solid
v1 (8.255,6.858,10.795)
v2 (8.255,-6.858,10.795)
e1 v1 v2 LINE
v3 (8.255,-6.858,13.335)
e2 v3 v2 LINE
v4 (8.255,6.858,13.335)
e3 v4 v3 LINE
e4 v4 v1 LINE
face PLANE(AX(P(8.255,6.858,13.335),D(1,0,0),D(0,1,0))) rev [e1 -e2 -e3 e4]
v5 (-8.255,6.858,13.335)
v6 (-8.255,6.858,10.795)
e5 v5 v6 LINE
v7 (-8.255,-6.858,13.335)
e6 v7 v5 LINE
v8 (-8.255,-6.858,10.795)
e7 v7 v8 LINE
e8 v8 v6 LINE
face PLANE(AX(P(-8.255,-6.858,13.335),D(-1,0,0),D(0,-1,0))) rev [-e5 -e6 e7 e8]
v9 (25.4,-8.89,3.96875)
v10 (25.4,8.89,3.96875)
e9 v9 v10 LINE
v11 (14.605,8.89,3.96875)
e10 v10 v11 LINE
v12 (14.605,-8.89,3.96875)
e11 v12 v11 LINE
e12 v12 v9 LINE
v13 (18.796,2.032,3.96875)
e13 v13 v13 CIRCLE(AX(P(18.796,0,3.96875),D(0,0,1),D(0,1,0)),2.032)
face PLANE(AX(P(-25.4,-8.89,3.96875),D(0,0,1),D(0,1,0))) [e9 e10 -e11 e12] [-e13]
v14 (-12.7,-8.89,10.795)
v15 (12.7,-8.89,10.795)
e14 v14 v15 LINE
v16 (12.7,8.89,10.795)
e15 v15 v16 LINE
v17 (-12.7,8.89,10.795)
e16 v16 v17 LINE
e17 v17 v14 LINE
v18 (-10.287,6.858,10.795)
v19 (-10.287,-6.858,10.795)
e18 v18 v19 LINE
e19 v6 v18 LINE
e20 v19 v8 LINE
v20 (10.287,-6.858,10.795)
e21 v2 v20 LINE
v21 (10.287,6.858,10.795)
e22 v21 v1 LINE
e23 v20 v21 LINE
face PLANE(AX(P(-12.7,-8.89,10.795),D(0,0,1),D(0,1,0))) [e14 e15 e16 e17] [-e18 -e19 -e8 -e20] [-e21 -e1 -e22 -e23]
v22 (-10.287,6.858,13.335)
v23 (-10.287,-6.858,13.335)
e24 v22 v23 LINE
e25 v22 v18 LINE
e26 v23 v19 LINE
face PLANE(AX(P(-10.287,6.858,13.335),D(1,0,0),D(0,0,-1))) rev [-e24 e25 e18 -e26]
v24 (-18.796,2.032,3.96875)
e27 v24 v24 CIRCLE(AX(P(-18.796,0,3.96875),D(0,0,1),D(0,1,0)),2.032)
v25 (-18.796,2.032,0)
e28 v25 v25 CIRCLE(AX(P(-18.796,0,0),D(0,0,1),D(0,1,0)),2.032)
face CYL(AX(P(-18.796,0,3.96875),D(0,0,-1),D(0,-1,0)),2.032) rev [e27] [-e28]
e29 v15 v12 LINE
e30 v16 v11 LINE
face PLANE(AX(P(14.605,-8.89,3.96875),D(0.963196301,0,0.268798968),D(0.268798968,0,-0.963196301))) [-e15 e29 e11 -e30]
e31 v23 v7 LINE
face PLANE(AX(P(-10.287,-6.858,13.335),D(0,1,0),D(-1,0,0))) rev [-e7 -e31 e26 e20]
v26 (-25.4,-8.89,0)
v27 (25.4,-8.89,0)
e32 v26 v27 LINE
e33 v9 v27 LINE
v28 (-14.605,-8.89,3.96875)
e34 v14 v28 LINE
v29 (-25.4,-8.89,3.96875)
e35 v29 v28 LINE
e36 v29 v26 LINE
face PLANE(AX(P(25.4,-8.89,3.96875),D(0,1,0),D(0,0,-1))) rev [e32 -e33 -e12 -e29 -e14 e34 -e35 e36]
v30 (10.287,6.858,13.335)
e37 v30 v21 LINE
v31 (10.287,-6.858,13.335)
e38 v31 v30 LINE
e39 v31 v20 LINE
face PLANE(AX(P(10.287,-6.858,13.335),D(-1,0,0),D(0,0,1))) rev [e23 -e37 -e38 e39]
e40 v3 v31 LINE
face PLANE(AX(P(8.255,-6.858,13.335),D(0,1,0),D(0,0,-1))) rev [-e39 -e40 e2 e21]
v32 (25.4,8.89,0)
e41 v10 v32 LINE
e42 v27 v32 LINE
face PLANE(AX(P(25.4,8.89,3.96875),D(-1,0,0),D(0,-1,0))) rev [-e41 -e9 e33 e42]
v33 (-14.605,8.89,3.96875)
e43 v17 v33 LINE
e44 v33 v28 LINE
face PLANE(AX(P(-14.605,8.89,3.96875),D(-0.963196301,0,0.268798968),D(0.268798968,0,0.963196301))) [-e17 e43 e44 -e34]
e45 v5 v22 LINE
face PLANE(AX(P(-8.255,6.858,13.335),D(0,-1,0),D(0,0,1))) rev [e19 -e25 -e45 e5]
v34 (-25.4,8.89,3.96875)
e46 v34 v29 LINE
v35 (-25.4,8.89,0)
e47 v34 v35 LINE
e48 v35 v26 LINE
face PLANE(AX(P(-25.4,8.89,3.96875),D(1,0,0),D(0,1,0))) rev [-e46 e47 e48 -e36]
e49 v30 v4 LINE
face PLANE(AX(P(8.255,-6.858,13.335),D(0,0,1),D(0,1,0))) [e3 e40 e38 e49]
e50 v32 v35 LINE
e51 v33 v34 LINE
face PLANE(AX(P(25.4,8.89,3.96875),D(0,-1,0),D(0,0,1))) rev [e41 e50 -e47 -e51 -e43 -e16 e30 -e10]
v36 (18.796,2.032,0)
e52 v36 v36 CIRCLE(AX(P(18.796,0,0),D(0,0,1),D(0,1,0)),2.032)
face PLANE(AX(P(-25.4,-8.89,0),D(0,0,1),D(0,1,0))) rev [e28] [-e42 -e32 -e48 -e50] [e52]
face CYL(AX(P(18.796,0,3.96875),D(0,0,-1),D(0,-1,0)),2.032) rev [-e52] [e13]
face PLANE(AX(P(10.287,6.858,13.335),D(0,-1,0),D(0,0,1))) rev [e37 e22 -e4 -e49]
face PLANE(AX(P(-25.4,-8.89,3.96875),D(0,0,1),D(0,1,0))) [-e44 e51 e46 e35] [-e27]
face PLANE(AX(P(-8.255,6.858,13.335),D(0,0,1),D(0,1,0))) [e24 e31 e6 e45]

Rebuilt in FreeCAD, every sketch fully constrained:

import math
import FreeCAD as App
import Part
import Sketcher
from FreeCAD import Vector
Q = App.Units.Quantity


def edges_at(feature, points):
    """Names of the edges that pass closest to the given points."""
    edges = feature.Shape.Edges
    near = lambda p: min(range(len(edges)), key=lambda i: edges[i].distToShape(Part.Vertex(*p))[0])
    return sorted({f"Edge{near(p) + 1}" for p in points})

doc = App.newDocument("Part")
body = doc.addObject("PartDesign::Body", "Body")

# Sketch on XY plane
sketch1 = doc.addObject("Sketcher::SketchObject", "Sketch")
body.addObject(sketch1)
sketch1.AttachmentSupport = (doc.XY_Plane, [""])
sketch1.MapMode = "FlatFace"
sketch1.addGeometry(Part.LineSegment(Vector(-8.9, 25.4, 0), Vector(-8.9, -25.4, 0)), False)
sketch1.addGeometry(Part.LineSegment(Vector(-8.9, -25.4, 0), Vector(8.9, -25.4, 0)), False)
sketch1.addGeometry(Part.LineSegment(Vector(8.9, -25.4, 0), Vector(8.9, 25.4, 0)), False)
sketch1.addGeometry(Part.LineSegment(Vector(8.9, 25.4, 0), Vector(-8.9, 25.4, 0)), False)
sketch1.addGeometry(Part.Circle(Vector(0, -18.8, 0), Vector(0, 0, 1), 2), False)
sketch1.addGeometry(Part.Circle(Vector(0, 18.8, 0), Vector(0, 0, 1), 2), False)
sketch1.addConstraint(Sketcher.Constraint("Coincident", 0, 2, 1, 1))
sketch1.addConstraint(Sketcher.Constraint("Coincident", 1, 2, 2, 1))
sketch1.addConstraint(Sketcher.Constraint("Coincident", 2, 2, 3, 1))
sketch1.addConstraint(Sketcher.Constraint("Coincident", 3, 2, 0, 1))
sketch1.addConstraint(Sketcher.Constraint("Vertical", 0))
sketch1.addConstraint(Sketcher.Constraint("Horizontal", 1))
sketch1.addConstraint(Sketcher.Constraint("Vertical", 2))
sketch1.addConstraint(Sketcher.Constraint("Horizontal", 3))
sketch1.addConstraint(Sketcher.Constraint("Equal", 4, 5))
sketch1.addConstraint(Sketcher.Constraint("Symmetric", 4, 3, 5, 3, -1, 1))
sketch1.addConstraint(Sketcher.Constraint("Symmetric", 0, 2, 2, 2, -1, 1))
sketch1.addConstraint(Sketcher.Constraint("PointOnObject", 4, 3, -2))
sketch1.addConstraint(Sketcher.Constraint("Diameter", 4, Q("0.16 in")))
sketch1.addConstraint(Sketcher.Constraint("DistanceY", 0, 2, 0, 1, Q("2 in")))
sketch1.addConstraint(Sketcher.Constraint("DistanceX", 1, 1, 1, 2, Q("0.7 in")))
sketch1.addConstraint(Sketcher.Constraint("DistanceY", 4, 3, -1, 1, Q("0.74 in")))
pad1 = doc.addObject("PartDesign::Pad", "Pad")
body.addObject(pad1)
pad1.Profile = sketch1
pad1.Length = Q("0.15625 in")

# Sketch on XY plane
sketch2 = doc.addObject("Sketcher::SketchObject", "Sketch001")
body.addObject(sketch2)
sketch2.AttachmentSupport = (doc.XY_Plane, [""])
sketch2.MapMode = "FlatFace"
sketch2.AttachmentOffset = App.Placement(Vector(0, 0, 0.425 * 25.4), App.Rotation())
sketch2.addGeometry(Part.LineSegment(Vector(-9, 13, 0), Vector(-9, -13, 0)), False)
sketch2.addGeometry(Part.LineSegment(Vector(-9, -13, 0), Vector(9, -13, 0)), False)
sketch2.addGeometry(Part.LineSegment(Vector(9, -13, 0), Vector(9, 13, 0)), False)
sketch2.addGeometry(Part.LineSegment(Vector(9, 13, 0), Vector(-9, 13, 0)), False)
sketch2.addConstraint(Sketcher.Constraint("Coincident", 0, 2, 1, 1))
sketch2.addConstraint(Sketcher.Constraint("Coincident", 1, 2, 2, 1))
sketch2.addConstraint(Sketcher.Constraint("Coincident", 2, 2, 3, 1))
sketch2.addConstraint(Sketcher.Constraint("Coincident", 3, 2, 0, 1))
sketch2.addConstraint(Sketcher.Constraint("Vertical", 0))
sketch2.addConstraint(Sketcher.Constraint("Horizontal", 1))
sketch2.addConstraint(Sketcher.Constraint("Vertical", 2))
sketch2.addConstraint(Sketcher.Constraint("Horizontal", 3))
sketch2.addConstraint(Sketcher.Constraint("Symmetric", 0, 2, 2, 2, -1, 1))
sketch2.addConstraint(Sketcher.Constraint("DistanceY", 0, 2, 0, 1, Q("1 in")))
sketch2.addConstraint(Sketcher.Constraint("DistanceX", 1, 1, 1, 2, Q("0.7 in")))

# Sketch on XY plane
sketch3 = doc.addObject("Sketcher::SketchObject", "Sketch002")
body.addObject(sketch3)
sketch3.AttachmentSupport = (doc.XY_Plane, [""])
sketch3.MapMode = "FlatFace"
sketch3.AttachmentOffset = App.Placement(Vector(0, 0, 0.15625 * 25.4), App.Rotation())
sketch3.addGeometry(Part.LineSegment(Vector(-9, 15, 0), Vector(-9, -15, 0)), False)
sketch3.addGeometry(Part.LineSegment(Vector(-9, -15, 0), Vector(9, -15, 0)), False)
sketch3.addGeometry(Part.LineSegment(Vector(9, -15, 0), Vector(9, 15, 0)), False)
sketch3.addGeometry(Part.LineSegment(Vector(9, 15, 0), Vector(-9, 15, 0)), False)
sketch3.addConstraint(Sketcher.Constraint("Coincident", 0, 2, 1, 1))
sketch3.addConstraint(Sketcher.Constraint("Coincident", 1, 2, 2, 1))
sketch3.addConstraint(Sketcher.Constraint("Coincident", 2, 2, 3, 1))
sketch3.addConstraint(Sketcher.Constraint("Coincident", 3, 2, 0, 1))
sketch3.addConstraint(Sketcher.Constraint("Vertical", 0))
sketch3.addConstraint(Sketcher.Constraint("Horizontal", 1))
sketch3.addConstraint(Sketcher.Constraint("Vertical", 2))
sketch3.addConstraint(Sketcher.Constraint("Horizontal", 3))
sketch3.addConstraint(Sketcher.Constraint("Symmetric", 0, 2, 2, 2, -1, 1))
sketch3.addConstraint(Sketcher.Constraint("DistanceX", 1, 1, 1, 2, Q("0.7 in")))
sketch3.addConstraint(Sketcher.Constraint("DistanceY", 0, 2, 0, 1, Q("1.15 in")))

additiveloft = doc.addObject("PartDesign::AdditiveLoft", "AdditiveLoft")
body.addObject(additiveloft)
additiveloft.Profile = sketch2
additiveloft.Sections = [sketch3]

# Sketch on XY plane
sketch4 = doc.addObject("Sketcher::SketchObject", "Sketch003")
body.addObject(sketch4)
sketch4.AttachmentSupport = (doc.XY_Plane, [""])
sketch4.MapMode = "FlatFace"
sketch4.AttachmentOffset = App.Placement(Vector(0, 0, 0.425 * 25.4), App.Rotation())
sketch4.addGeometry(Part.LineSegment(Vector(-6.9, 10.3, 0), Vector(-6.9, 8.3, 0)), False)
sketch4.addGeometry(Part.LineSegment(Vector(-6.9, 8.3, 0), Vector(6.9, 8.3, 0)), False)
sketch4.addGeometry(Part.LineSegment(Vector(6.9, 8.3, 0), Vector(6.9, 10.3, 0)), False)
sketch4.addGeometry(Part.LineSegment(Vector(6.9, 10.3, 0), Vector(-6.9, 10.3, 0)), False)
sketch4.addGeometry(Part.LineSegment(Vector(-6.9, -8.3, 0), Vector(-6.9, -10.3, 0)), False)
sketch4.addGeometry(Part.LineSegment(Vector(-6.9, -10.3, 0), Vector(6.9, -10.3, 0)), False)
sketch4.addGeometry(Part.LineSegment(Vector(6.9, -10.3, 0), Vector(6.9, -8.3, 0)), False)
sketch4.addGeometry(Part.LineSegment(Vector(6.9, -8.3, 0), Vector(-6.9, -8.3, 0)), False)
sketch4.addConstraint(Sketcher.Constraint("Coincident", 0, 2, 1, 1))
sketch4.addConstraint(Sketcher.Constraint("Coincident", 1, 2, 2, 1))
sketch4.addConstraint(Sketcher.Constraint("Coincident", 2, 2, 3, 1))
sketch4.addConstraint(Sketcher.Constraint("Coincident", 3, 2, 0, 1))
sketch4.addConstraint(Sketcher.Constraint("Coincident", 4, 2, 5, 1))
sketch4.addConstraint(Sketcher.Constraint("Coincident", 5, 2, 6, 1))
sketch4.addConstraint(Sketcher.Constraint("Coincident", 6, 2, 7, 1))
sketch4.addConstraint(Sketcher.Constraint("Coincident", 7, 2, 4, 1))
sketch4.addConstraint(Sketcher.Constraint("Vertical", 0))
sketch4.addConstraint(Sketcher.Constraint("Horizontal", 1))
sketch4.addConstraint(Sketcher.Constraint("Vertical", 2))
sketch4.addConstraint(Sketcher.Constraint("Horizontal", 3))
sketch4.addConstraint(Sketcher.Constraint("Vertical", 4))
sketch4.addConstraint(Sketcher.Constraint("Horizontal", 5))
sketch4.addConstraint(Sketcher.Constraint("Vertical", 6))
sketch4.addConstraint(Sketcher.Constraint("Horizontal", 7))
sketch4.addConstraint(Sketcher.Constraint("Symmetric", 2, 2, 4, 2, -1, 1))
sketch4.addConstraint(Sketcher.Constraint("Symmetric", 0, 2, 6, 2, -1, 1))
sketch4.addConstraint(Sketcher.Constraint("Vertical", 3, 2, 4, 2))
sketch4.addConstraint(Sketcher.Constraint("DistanceX", 1, 1, 1, 2, Q("0.54 in")))
sketch4.addConstraint(Sketcher.Constraint("DistanceY", 0, 2, 0, 1, Q("0.08 in")))
sketch4.addConstraint(Sketcher.Constraint("DistanceY", 4, 2, 0, 2, Q("0.73 in")))
pad2 = doc.addObject("PartDesign::Pad", "Pad001")
body.addObject(pad2)
pad2.Profile = sketch4
pad2.Length = Q("0.1 in")
body2 = doc.addObject("PartDesign::Body", "Body001")

# Sketch on XZ plane
sketch5 = doc.addObject("Sketcher::SketchObject", "Sketch004")
body2.addObject(sketch5)
sketch5.AttachmentSupport = (doc.getObject("XZ_Plane001"), [""])
sketch5.MapMode = "FlatFace"
sketch5.addGeometry(Part.LineSegment(Vector(9.5, 13.3, 0), Vector(-7, 13.3, 0)), False)
sketch5.addGeometry(Part.ArcOfCircle(Part.Circle(Vector(-7, 15.9, 0), Vector(0, 0, 1), 2.5), math.radians(-180), math.radians(-90)), False)
sketch5.addGeometry(Part.LineSegment(Vector(-9.5, 15.9, 0), Vector(-9.5, 31.9, 0)), False)
sketch5.addGeometry(Part.LineSegment(Vector(-9.5, 31.9, 0), Vector(-8.6, 31.9, 0)), False)
sketch5.addGeometry(Part.LineSegment(Vector(-8.6, 31.9, 0), Vector(-8.6, 15.9, 0)), False)
sketch5.addGeometry(Part.ArcOfCircle(Part.Circle(Vector(-7, 15.9, 0), Vector(0, 0, 1), 1.6), math.radians(180), math.radians(270)), False)
sketch5.addGeometry(Part.LineSegment(Vector(-7, 14.3, 0), Vector(9.5, 14.3, 0)), False)
sketch5.addGeometry(Part.LineSegment(Vector(9.5, 14.3, 0), Vector(9.5, 13.3, 0)), False)
sketch5.addConstraint(Sketcher.Constraint("Tangent", 0, 2, 1, 2))
sketch5.addConstraint(Sketcher.Constraint("Tangent", 1, 1, 2, 1))
sketch5.addConstraint(Sketcher.Constraint("Coincident", 2, 2, 3, 1))
sketch5.addConstraint(Sketcher.Constraint("Coincident", 3, 2, 4, 1))
sketch5.addConstraint(Sketcher.Constraint("Tangent", 4, 2, 5, 1))
sketch5.addConstraint(Sketcher.Constraint("Tangent", 5, 2, 6, 1))
sketch5.addConstraint(Sketcher.Constraint("Coincident", 6, 2, 7, 1))
sketch5.addConstraint(Sketcher.Constraint("Coincident", 7, 2, 0, 1))
sketch5.addConstraint(Sketcher.Constraint("Horizontal", 0))
sketch5.addConstraint(Sketcher.Constraint("Vertical", 2))
sketch5.addConstraint(Sketcher.Constraint("Horizontal", 3))
sketch5.addConstraint(Sketcher.Constraint("Vertical", 4))
sketch5.addConstraint(Sketcher.Constraint("Horizontal", 6))
sketch5.addConstraint(Sketcher.Constraint("Vertical", 7))
sketch5.addConstraint(Sketcher.Constraint("Coincident", 5, 3, 1, 3))
sketch5.addConstraint(Sketcher.Constraint("Radius", 1, Q("0.1 in")))
sketch5.addConstraint(Sketcher.Constraint("Radius", 5, Q("0.0625 in")))
sketch5.addConstraint(Sketcher.Constraint("DistanceX", 0, 2, 0, 1, Q("0.65 in")))
sketch5.addConstraint(Sketcher.Constraint("DistanceY", 2, 1, 2, 2, Q("0.63 in")))
sketch5.addConstraint(Sketcher.Constraint("DistanceX", 1, 3, -1, 1, Q("0.275 in")))
sketch5.addConstraint(Sketcher.Constraint("DistanceY", -1, 1, 1, 3, Q("0.625 in")))
pad3 = doc.addObject("PartDesign::Pad", "Pad002")
body2.addObject(pad3)
pad3.Profile = sketch5
pad3.Length = Q("1.125 in")
pad3.Midplane = True
doc.recompute()

fillet = doc.addObject("PartDesign::Fillet", "Fillet")
body2.addObject(fillet)
fillet.Base = (pad3, edges_at(pad3, [
    (9.525, 14.287, 13.811),
    (-9.049, 14.287, 31.877),
    (9.525, -14.287, 13.811),
    (-9.049, -14.287, 31.877),
]))
fillet.Radius = Q("0.1 in")

# Sketch on YZ plane
sketch6 = doc.addObject("Sketcher::SketchObject", "Sketch005")
body2.addObject(sketch6)
sketch6.AttachmentSupport = (doc.getObject("YZ_Plane001"), [""])
sketch6.MapMode = "FlatFace"
sketch6.AttachmentOffset = App.Placement(Vector(0, 0, -0.375 * 25.4), App.Rotation())
sketch6.addGeometry(Part.LineSegment(Vector(11.3, 25.3, 0), Vector(11.3, 19.3, 0)), False)
sketch6.addGeometry(Part.ArcOfCircle(Part.Circle(Vector(9.5, 19.3, 0), Vector(0, 0, 1), 1.8), math.radians(180), math.radians(360)), False)
sketch6.addGeometry(Part.LineSegment(Vector(7.7, 19.3, 0), Vector(7.7, 25.3, 0)), False)
sketch6.addGeometry(Part.ArcOfCircle(Part.Circle(Vector(9.5, 25.3, 0), Vector(0, 0, 1), 1.8), math.radians(0), math.radians(180)), False)
sketch6.addGeometry(Part.LineSegment(Vector(-7.7, 25.3, 0), Vector(-7.7, 19.3, 0)), False)
sketch6.addGeometry(Part.ArcOfCircle(Part.Circle(Vector(-9.5, 19.3, 0), Vector(0, 0, 1), 1.8), math.radians(180), math.radians(360)), False)
sketch6.addGeometry(Part.LineSegment(Vector(-11.3, 19.3, 0), Vector(-11.3, 25.3, 0)), False)
sketch6.addGeometry(Part.ArcOfCircle(Part.Circle(Vector(-9.5, 25.3, 0), Vector(0, 0, 1), 1.8), math.radians(0), math.radians(180)), False)
sketch6.addConstraint(Sketcher.Constraint("Tangent", 0, 2, 1, 2))
sketch6.addConstraint(Sketcher.Constraint("Tangent", 1, 1, 2, 1))
sketch6.addConstraint(Sketcher.Constraint("Tangent", 2, 2, 3, 2))
sketch6.addConstraint(Sketcher.Constraint("Tangent", 3, 1, 0, 1))
sketch6.addConstraint(Sketcher.Constraint("Tangent", 4, 2, 5, 2))
sketch6.addConstraint(Sketcher.Constraint("Tangent", 5, 1, 6, 1))
sketch6.addConstraint(Sketcher.Constraint("Tangent", 6, 2, 7, 2))
sketch6.addConstraint(Sketcher.Constraint("Tangent", 7, 1, 4, 1))
sketch6.addConstraint(Sketcher.Constraint("Vertical", 0))
sketch6.addConstraint(Sketcher.Constraint("Vertical", 2))
sketch6.addConstraint(Sketcher.Constraint("Vertical", 4))
sketch6.addConstraint(Sketcher.Constraint("Vertical", 6))
sketch6.addConstraint(Sketcher.Constraint("Equal", 3, 5))
sketch6.addConstraint(Sketcher.Constraint("Symmetric", 1, 3, 5, 3, -2))
sketch6.addConstraint(Sketcher.Constraint("Horizontal", 3, 3, 7, 3))
sketch6.addConstraint(Sketcher.Constraint("Radius", 1, Q("0.07 in")))
sketch6.addConstraint(Sketcher.Constraint("DistanceY", 0, 2, 0, 1, Q("0.235 in")))
sketch6.addConstraint(Sketcher.Constraint("DistanceY", -1, 1, 1, 3, Q("0.76 in")))
sketch6.addConstraint(Sketcher.Constraint("DistanceX", 5, 3, 1, 3, Q("0.75 in")))
pocket1 = doc.addObject("PartDesign::Pocket", "Pocket")
body2.addObject(pocket1)
pocket1.Profile = sketch6
pocket1.Length = Q("0.0375 in")
pocket1.Reversed = True

# Sketch on YZ plane
sketch7 = doc.addObject("Sketcher::SketchObject", "Sketch006")
body2.addObject(sketch7)
sketch7.AttachmentSupport = (doc.getObject("YZ_Plane001"), [""])
sketch7.MapMode = "FlatFace"
sketch7.AttachmentOffset = App.Placement(Vector(0, 0, -0.3375 * 25.4), App.Rotation())
sketch7.addGeometry(Part.Circle(Vector(0, 29.1, 0), Vector(0, 0, 1), 1.3), False)
sketch7.addConstraint(Sketcher.Constraint("PointOnObject", 0, 3, -2))
sketch7.addConstraint(Sketcher.Constraint("Diameter", 0, Q("0.1 in")))
sketch7.addConstraint(Sketcher.Constraint("DistanceY", -1, 1, 0, 3, Q("1.145 in")))
pocket2 = doc.addObject("PartDesign::Pocket", "Pocket001")
body2.addObject(pocket2)
pocket2.Profile = sketch7
pocket2.Length = Q("0.0375 in")
body3 = doc.addObject("PartDesign::Body", "Body002")
doc.recompute()

body2.Placement = App.Placement(Vector(0, 0, 25.4), App.Rotation(Vector(0, 0, 1), 0))
boolean = doc.addObject("PartDesign::Boolean", "Boolean")
body3.addObject(boolean)
boolean.Type = "Fuse"
boolean.addObjects([body2])
body4 = doc.addObject("PartDesign::Body", "Body003")
doc.recompute()

body.Placement = App.Placement(Vector(0, 0, 0), App.Rotation(Vector(0, 0, 1), 90))
boolean2 = doc.addObject("PartDesign::Boolean", "Boolean001")
body4.addObject(boolean2)
boolean2.Type = "Fuse"
boolean2.addObjects([body])
body3.Visibility = False

doc.recompute()
